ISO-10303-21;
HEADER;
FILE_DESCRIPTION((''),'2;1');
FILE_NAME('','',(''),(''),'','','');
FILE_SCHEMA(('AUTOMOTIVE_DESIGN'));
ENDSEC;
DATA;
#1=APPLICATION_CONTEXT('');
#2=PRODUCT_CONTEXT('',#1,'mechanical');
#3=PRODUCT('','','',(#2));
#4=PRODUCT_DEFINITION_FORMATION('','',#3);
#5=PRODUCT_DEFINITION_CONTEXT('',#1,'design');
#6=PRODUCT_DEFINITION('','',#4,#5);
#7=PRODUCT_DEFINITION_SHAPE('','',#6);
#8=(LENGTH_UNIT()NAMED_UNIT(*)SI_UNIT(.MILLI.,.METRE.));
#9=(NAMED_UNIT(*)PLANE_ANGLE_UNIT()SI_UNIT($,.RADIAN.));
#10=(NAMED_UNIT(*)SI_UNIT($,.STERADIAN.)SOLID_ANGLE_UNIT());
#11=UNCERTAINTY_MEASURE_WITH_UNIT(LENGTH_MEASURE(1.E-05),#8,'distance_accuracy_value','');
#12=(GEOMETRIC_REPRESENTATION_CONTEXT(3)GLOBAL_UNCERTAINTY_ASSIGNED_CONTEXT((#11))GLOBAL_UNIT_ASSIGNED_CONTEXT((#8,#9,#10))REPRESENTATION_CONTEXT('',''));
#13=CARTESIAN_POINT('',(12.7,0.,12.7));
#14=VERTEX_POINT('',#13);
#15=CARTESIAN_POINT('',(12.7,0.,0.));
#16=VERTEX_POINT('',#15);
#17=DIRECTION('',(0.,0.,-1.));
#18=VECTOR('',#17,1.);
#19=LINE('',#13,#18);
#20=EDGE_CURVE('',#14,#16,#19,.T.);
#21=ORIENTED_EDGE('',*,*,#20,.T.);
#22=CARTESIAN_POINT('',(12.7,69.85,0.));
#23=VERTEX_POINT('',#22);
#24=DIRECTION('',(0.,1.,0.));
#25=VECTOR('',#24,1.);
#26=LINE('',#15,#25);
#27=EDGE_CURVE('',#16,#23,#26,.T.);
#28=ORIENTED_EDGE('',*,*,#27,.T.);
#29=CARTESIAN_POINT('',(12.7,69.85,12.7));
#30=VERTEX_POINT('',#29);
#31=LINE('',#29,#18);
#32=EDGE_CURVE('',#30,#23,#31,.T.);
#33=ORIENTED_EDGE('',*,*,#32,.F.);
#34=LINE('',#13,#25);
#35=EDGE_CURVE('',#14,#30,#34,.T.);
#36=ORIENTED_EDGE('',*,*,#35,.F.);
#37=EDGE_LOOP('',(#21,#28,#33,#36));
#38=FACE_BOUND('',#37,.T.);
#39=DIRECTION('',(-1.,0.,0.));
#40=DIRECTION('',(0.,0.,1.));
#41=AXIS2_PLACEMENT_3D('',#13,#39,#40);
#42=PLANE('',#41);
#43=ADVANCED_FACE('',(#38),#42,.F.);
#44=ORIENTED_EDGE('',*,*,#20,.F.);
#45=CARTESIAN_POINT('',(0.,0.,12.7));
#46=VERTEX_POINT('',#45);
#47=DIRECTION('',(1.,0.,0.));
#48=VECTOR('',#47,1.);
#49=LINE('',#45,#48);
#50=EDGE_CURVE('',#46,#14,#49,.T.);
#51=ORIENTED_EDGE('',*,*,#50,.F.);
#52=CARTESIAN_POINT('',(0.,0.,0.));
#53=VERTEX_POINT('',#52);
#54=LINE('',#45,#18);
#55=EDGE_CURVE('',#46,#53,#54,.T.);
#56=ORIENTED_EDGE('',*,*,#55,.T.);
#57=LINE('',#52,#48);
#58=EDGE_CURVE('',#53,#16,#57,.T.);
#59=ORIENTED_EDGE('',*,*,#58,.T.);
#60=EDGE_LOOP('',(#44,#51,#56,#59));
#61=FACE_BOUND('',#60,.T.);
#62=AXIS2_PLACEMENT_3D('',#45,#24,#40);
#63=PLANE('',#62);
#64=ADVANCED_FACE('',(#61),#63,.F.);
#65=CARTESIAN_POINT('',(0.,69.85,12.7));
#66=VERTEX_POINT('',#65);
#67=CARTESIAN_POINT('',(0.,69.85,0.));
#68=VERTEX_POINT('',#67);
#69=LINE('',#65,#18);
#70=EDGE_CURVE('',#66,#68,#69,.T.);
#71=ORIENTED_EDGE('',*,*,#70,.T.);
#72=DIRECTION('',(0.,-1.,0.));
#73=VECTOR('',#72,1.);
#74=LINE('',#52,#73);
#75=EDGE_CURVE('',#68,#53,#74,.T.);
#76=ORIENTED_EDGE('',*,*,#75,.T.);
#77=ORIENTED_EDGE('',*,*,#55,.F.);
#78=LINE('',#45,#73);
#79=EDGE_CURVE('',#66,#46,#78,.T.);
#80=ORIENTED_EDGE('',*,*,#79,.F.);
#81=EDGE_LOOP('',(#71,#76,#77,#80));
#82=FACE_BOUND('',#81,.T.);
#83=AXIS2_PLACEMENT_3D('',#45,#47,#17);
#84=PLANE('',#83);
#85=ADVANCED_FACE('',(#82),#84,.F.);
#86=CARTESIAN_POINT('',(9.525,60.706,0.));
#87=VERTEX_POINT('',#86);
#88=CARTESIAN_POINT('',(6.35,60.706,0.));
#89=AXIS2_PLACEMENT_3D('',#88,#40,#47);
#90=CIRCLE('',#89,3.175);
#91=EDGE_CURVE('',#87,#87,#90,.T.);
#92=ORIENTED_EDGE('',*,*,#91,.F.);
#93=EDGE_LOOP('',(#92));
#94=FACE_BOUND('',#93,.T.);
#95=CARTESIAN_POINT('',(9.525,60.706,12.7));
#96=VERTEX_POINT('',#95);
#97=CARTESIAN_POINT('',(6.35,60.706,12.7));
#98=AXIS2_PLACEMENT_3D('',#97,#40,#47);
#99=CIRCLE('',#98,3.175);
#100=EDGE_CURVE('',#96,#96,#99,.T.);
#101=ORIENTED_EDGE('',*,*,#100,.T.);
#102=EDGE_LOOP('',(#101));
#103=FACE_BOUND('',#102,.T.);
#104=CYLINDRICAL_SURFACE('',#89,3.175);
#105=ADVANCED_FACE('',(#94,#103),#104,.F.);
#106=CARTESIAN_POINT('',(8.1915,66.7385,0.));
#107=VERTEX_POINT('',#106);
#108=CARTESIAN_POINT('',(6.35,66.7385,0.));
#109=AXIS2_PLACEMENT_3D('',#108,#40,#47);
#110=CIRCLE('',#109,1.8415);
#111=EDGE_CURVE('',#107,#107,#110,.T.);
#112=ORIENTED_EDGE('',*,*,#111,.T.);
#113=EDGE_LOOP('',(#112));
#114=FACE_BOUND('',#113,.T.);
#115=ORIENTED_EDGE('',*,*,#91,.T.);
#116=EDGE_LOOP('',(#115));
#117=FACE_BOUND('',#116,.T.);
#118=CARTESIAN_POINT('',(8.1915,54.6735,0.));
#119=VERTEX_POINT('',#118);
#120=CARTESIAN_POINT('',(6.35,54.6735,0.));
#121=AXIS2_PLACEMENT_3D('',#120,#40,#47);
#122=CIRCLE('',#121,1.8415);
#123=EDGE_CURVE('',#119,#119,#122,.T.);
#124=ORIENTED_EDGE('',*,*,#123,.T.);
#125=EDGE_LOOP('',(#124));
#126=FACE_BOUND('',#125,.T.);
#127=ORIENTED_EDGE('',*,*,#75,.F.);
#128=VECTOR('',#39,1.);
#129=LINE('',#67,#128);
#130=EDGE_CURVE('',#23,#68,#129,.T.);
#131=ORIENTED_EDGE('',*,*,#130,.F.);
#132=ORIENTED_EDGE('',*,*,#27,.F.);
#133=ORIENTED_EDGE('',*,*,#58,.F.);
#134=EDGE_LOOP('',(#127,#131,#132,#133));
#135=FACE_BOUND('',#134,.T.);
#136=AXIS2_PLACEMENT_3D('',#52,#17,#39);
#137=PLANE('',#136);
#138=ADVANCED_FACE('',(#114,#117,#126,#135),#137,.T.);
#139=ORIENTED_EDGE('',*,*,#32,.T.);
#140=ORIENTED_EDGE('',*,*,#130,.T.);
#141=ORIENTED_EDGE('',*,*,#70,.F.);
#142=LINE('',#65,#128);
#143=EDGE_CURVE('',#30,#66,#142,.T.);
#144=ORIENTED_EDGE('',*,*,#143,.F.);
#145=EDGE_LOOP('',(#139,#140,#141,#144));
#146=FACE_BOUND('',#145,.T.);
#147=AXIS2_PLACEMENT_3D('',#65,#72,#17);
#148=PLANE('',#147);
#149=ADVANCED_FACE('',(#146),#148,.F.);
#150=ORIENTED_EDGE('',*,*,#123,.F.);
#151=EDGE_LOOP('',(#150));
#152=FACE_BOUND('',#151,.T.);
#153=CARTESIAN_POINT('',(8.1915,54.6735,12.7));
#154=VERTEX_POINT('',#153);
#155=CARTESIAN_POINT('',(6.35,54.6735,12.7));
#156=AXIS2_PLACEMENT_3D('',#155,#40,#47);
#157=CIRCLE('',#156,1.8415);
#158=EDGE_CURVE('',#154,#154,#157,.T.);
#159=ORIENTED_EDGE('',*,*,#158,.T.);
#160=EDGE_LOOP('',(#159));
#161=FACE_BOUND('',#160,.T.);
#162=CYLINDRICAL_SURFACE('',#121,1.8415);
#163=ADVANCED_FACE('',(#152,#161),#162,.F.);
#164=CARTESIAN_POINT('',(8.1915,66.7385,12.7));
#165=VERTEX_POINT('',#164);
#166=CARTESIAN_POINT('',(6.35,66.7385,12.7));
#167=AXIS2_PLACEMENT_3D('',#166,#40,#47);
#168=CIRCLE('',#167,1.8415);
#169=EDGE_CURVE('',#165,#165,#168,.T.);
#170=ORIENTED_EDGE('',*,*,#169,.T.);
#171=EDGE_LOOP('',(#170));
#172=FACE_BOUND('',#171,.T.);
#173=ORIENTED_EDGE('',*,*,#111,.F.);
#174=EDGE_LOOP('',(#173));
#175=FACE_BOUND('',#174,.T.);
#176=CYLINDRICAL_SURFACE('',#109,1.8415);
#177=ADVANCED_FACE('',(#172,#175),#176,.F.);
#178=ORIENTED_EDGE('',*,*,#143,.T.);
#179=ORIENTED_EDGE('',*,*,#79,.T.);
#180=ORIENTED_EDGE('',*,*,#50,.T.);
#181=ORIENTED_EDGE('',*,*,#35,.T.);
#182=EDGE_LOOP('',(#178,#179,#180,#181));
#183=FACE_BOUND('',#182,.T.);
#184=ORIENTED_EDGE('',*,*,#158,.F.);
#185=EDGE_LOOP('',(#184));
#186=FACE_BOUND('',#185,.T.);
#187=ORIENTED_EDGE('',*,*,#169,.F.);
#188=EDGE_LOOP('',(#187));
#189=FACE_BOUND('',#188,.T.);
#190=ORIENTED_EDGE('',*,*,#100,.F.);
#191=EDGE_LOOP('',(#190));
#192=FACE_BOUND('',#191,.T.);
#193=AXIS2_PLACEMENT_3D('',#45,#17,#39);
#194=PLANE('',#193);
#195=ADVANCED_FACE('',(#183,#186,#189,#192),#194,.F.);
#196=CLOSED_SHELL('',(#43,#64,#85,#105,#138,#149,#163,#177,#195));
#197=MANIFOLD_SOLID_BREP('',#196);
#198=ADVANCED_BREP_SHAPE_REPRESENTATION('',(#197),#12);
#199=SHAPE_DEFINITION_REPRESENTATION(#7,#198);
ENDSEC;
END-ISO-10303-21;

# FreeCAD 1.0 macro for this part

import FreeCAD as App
import Part
import Sketcher
Q = App.Units.Quantity

doc = App.newDocument("Part")
body = doc.addObject("PartDesign::Body", "Body")

sketch1 = body.newObject("Sketcher::SketchObject", "Sketch")
sketch1.AttachmentSupport = (doc.getObject("XY_Plane"), [""])
sketch1.MapMode = "FlatFace"
sketch1.addGeometry(Part.LineSegment(App.Vector(0, 69.85, 0), App.Vector(0, 0, 0)), False)
sketch1.addGeometry(Part.LineSegment(App.Vector(0, 0, 0), App.Vector(12.7, 0, 0)), False)
sketch1.addGeometry(Part.LineSegment(App.Vector(12.7, 0, 0), App.Vector(12.7, 69.85, 0)), False)
sketch1.addGeometry(Part.LineSegment(App.Vector(12.7, 69.85, 0), App.Vector(0, 69.85, 0)), False)
sketch1.addConstraint(Sketcher.Constraint("Coincident", 0, 2, 1, 1))
sketch1.addConstraint(Sketcher.Constraint("Coincident", 1, 2, 2, 1))
sketch1.addConstraint(Sketcher.Constraint("Coincident", 2, 2, 3, 1))
sketch1.addConstraint(Sketcher.Constraint("Coincident", 3, 2, 0, 1))
sketch1.addConstraint(Sketcher.Constraint("Vertical", 0))
sketch1.addConstraint(Sketcher.Constraint("Horizontal", 1))
sketch1.addConstraint(Sketcher.Constraint("Vertical", 2))
sketch1.addConstraint(Sketcher.Constraint("Horizontal", 3))
sketch1.addConstraint(Sketcher.Constraint("Coincident", 0, 2, -1, 1))
sketch1.addConstraint(Sketcher.Constraint("DistanceX", 1, 1, 1, 2, Q("0.5 in")))
sketch1.addConstraint(Sketcher.Constraint("DistanceY", 0, 2, 0, 1, Q("2.75 in")))
pad1 = body.newObject("PartDesign::Pad", "Pad")
pad1.Profile = sketch1
pad1.Length = Q("0.5 in")

sketch2 = body.newObject("Sketcher::SketchObject", "Sketch001")
sketch2.AttachmentSupport = (doc.getObject("XY_Plane"), [""])
sketch2.MapMode = "FlatFace"
sketch2.AttachmentOffset = App.Placement(App.Vector(0, 0, 0.5 * 25.4), App.Rotation())
sketch2.addGeometry(Part.Circle(App.Vector(6.35, 60.706, 0), App.Vector(0, 0, 1), 3.175), False)
sketch2.addGeometry(Part.Circle(App.Vector(6.35, 66.7385, 0), App.Vector(0, 0, 1), 1.8415), False)
sketch2.addGeometry(Part.Circle(App.Vector(6.35, 54.6735, 0), App.Vector(0, 0, 1), 1.8415), False)
sketch2.addConstraint(Sketcher.Constraint("Equal", 1, 2))
sketch2.addConstraint(Sketcher.Constraint("Vertical", 0, 3, 1, 3))
sketch2.addConstraint(Sketcher.Constraint("Vertical", 1, 3, 2, 3))
sketch2.addConstraint(Sketcher.Constraint("Diameter", 0, Q("0.25 in")))
sketch2.addConstraint(Sketcher.Constraint("Diameter", 1, Q("0.145 in")))
sketch2.addConstraint(Sketcher.Constraint("DistanceX", -1, 1, 0, 3, Q("0.25 in")))
sketch2.addConstraint(Sketcher.Constraint("DistanceY", -1, 1, 0, 3, Q("2.39 in")))
sketch2.addConstraint(Sketcher.Constraint("DistanceY", 2, 3, 1, 3, Q("0.475 in")))
sketch2.addConstraint(Sketcher.Constraint("DistanceY", -1, 1, 1, 3, Q("2.6275 in")))
pocket1 = body.newObject("PartDesign::Pocket", "Pocket")
pocket1.Profile = sketch2
pocket1.Type = "ThroughAll"

doc.recompute()
